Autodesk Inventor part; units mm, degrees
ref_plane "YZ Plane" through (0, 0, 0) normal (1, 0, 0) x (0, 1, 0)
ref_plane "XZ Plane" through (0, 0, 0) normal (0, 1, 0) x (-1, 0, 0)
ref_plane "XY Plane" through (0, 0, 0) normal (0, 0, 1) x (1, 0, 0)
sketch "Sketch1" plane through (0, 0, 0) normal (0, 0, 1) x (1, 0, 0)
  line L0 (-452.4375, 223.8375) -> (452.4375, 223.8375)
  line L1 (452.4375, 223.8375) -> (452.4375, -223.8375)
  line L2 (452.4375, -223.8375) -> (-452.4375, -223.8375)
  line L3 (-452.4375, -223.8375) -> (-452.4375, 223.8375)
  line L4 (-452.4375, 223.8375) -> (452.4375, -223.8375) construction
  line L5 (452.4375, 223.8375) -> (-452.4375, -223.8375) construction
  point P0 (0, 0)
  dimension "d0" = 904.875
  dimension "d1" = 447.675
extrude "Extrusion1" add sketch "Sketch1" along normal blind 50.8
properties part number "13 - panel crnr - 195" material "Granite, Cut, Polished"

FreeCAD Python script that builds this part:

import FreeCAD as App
import Part
import Sketcher
from FreeCAD import Vector
Q = App.Units.Quantity

doc = App.newDocument("Part")
params = doc.addObject("Spreadsheet::Sheet", "Params")
for row, (alias, value) in enumerate([
    ("sketch1_width", "35.625 in"),
    ("sketch1_height", "17.625 in"),
    ("pad1_length", "2 in"),
], start=1):
    params.set(f"A{row}", alias)
    params.set(f"B{row}", "=" + value)
    params.setAlias(f"B{row}", alias)

body = doc.addObject("PartDesign::Body", "Body")

# Sketch on XY plane
sketch1 = body.newObject("Sketcher::SketchObject", "Sketch")
sketch1.AttachmentSupport = (doc.getObject("XY_Plane"), [""])
sketch1.MapMode = "FlatFace"
sketch1.addGeometry([
    Part.LineSegment(Vector(452.4375, 223.8375, 0), Vector(-452.4375, 223.8375, 0)),
    Part.LineSegment(Vector(-452.4375, 223.8375, 0), Vector(-452.4375, -223.8375, 0)),
    Part.LineSegment(Vector(-452.4375, -223.8375, 0), Vector(452.4375, -223.8375, 0)),
    Part.LineSegment(Vector(452.4375, -223.8375, 0), Vector(452.4375, 223.8375, 0)),
], False)
sketch1.addConstraint([
    Sketcher.Constraint("Coincident", 0, 2, 1, 1),
    Sketcher.Constraint("Coincident", 1, 2, 2, 1),
    Sketcher.Constraint("Coincident", 2, 2, 3, 1),
    Sketcher.Constraint("Coincident", 3, 2, 0, 1),
    Sketcher.Constraint("Horizontal", 0),
    Sketcher.Constraint("Vertical", 1),
    Sketcher.Constraint("Horizontal", 2),
    Sketcher.Constraint("Vertical", 3),
    Sketcher.Constraint("Symmetric", 0, 2, 2, 2, -1, 1),
    Sketcher.Constraint("DistanceX", 0, 2, 0, 1, Q("35.625 in")),
    Sketcher.Constraint("DistanceY", 1, 2, 1, 1, Q("17.625 in")),
])
sketch1.setExpression("Constraints[9]", "Params.sketch1_width")
sketch1.setExpression("Constraints[10]", "Params.sketch1_height")
pad1 = body.newObject("PartDesign::Pad", "Pad")
pad1.Profile = sketch1
pad1.setExpression("Length", "Params.pad1_length")

doc.recompute()
